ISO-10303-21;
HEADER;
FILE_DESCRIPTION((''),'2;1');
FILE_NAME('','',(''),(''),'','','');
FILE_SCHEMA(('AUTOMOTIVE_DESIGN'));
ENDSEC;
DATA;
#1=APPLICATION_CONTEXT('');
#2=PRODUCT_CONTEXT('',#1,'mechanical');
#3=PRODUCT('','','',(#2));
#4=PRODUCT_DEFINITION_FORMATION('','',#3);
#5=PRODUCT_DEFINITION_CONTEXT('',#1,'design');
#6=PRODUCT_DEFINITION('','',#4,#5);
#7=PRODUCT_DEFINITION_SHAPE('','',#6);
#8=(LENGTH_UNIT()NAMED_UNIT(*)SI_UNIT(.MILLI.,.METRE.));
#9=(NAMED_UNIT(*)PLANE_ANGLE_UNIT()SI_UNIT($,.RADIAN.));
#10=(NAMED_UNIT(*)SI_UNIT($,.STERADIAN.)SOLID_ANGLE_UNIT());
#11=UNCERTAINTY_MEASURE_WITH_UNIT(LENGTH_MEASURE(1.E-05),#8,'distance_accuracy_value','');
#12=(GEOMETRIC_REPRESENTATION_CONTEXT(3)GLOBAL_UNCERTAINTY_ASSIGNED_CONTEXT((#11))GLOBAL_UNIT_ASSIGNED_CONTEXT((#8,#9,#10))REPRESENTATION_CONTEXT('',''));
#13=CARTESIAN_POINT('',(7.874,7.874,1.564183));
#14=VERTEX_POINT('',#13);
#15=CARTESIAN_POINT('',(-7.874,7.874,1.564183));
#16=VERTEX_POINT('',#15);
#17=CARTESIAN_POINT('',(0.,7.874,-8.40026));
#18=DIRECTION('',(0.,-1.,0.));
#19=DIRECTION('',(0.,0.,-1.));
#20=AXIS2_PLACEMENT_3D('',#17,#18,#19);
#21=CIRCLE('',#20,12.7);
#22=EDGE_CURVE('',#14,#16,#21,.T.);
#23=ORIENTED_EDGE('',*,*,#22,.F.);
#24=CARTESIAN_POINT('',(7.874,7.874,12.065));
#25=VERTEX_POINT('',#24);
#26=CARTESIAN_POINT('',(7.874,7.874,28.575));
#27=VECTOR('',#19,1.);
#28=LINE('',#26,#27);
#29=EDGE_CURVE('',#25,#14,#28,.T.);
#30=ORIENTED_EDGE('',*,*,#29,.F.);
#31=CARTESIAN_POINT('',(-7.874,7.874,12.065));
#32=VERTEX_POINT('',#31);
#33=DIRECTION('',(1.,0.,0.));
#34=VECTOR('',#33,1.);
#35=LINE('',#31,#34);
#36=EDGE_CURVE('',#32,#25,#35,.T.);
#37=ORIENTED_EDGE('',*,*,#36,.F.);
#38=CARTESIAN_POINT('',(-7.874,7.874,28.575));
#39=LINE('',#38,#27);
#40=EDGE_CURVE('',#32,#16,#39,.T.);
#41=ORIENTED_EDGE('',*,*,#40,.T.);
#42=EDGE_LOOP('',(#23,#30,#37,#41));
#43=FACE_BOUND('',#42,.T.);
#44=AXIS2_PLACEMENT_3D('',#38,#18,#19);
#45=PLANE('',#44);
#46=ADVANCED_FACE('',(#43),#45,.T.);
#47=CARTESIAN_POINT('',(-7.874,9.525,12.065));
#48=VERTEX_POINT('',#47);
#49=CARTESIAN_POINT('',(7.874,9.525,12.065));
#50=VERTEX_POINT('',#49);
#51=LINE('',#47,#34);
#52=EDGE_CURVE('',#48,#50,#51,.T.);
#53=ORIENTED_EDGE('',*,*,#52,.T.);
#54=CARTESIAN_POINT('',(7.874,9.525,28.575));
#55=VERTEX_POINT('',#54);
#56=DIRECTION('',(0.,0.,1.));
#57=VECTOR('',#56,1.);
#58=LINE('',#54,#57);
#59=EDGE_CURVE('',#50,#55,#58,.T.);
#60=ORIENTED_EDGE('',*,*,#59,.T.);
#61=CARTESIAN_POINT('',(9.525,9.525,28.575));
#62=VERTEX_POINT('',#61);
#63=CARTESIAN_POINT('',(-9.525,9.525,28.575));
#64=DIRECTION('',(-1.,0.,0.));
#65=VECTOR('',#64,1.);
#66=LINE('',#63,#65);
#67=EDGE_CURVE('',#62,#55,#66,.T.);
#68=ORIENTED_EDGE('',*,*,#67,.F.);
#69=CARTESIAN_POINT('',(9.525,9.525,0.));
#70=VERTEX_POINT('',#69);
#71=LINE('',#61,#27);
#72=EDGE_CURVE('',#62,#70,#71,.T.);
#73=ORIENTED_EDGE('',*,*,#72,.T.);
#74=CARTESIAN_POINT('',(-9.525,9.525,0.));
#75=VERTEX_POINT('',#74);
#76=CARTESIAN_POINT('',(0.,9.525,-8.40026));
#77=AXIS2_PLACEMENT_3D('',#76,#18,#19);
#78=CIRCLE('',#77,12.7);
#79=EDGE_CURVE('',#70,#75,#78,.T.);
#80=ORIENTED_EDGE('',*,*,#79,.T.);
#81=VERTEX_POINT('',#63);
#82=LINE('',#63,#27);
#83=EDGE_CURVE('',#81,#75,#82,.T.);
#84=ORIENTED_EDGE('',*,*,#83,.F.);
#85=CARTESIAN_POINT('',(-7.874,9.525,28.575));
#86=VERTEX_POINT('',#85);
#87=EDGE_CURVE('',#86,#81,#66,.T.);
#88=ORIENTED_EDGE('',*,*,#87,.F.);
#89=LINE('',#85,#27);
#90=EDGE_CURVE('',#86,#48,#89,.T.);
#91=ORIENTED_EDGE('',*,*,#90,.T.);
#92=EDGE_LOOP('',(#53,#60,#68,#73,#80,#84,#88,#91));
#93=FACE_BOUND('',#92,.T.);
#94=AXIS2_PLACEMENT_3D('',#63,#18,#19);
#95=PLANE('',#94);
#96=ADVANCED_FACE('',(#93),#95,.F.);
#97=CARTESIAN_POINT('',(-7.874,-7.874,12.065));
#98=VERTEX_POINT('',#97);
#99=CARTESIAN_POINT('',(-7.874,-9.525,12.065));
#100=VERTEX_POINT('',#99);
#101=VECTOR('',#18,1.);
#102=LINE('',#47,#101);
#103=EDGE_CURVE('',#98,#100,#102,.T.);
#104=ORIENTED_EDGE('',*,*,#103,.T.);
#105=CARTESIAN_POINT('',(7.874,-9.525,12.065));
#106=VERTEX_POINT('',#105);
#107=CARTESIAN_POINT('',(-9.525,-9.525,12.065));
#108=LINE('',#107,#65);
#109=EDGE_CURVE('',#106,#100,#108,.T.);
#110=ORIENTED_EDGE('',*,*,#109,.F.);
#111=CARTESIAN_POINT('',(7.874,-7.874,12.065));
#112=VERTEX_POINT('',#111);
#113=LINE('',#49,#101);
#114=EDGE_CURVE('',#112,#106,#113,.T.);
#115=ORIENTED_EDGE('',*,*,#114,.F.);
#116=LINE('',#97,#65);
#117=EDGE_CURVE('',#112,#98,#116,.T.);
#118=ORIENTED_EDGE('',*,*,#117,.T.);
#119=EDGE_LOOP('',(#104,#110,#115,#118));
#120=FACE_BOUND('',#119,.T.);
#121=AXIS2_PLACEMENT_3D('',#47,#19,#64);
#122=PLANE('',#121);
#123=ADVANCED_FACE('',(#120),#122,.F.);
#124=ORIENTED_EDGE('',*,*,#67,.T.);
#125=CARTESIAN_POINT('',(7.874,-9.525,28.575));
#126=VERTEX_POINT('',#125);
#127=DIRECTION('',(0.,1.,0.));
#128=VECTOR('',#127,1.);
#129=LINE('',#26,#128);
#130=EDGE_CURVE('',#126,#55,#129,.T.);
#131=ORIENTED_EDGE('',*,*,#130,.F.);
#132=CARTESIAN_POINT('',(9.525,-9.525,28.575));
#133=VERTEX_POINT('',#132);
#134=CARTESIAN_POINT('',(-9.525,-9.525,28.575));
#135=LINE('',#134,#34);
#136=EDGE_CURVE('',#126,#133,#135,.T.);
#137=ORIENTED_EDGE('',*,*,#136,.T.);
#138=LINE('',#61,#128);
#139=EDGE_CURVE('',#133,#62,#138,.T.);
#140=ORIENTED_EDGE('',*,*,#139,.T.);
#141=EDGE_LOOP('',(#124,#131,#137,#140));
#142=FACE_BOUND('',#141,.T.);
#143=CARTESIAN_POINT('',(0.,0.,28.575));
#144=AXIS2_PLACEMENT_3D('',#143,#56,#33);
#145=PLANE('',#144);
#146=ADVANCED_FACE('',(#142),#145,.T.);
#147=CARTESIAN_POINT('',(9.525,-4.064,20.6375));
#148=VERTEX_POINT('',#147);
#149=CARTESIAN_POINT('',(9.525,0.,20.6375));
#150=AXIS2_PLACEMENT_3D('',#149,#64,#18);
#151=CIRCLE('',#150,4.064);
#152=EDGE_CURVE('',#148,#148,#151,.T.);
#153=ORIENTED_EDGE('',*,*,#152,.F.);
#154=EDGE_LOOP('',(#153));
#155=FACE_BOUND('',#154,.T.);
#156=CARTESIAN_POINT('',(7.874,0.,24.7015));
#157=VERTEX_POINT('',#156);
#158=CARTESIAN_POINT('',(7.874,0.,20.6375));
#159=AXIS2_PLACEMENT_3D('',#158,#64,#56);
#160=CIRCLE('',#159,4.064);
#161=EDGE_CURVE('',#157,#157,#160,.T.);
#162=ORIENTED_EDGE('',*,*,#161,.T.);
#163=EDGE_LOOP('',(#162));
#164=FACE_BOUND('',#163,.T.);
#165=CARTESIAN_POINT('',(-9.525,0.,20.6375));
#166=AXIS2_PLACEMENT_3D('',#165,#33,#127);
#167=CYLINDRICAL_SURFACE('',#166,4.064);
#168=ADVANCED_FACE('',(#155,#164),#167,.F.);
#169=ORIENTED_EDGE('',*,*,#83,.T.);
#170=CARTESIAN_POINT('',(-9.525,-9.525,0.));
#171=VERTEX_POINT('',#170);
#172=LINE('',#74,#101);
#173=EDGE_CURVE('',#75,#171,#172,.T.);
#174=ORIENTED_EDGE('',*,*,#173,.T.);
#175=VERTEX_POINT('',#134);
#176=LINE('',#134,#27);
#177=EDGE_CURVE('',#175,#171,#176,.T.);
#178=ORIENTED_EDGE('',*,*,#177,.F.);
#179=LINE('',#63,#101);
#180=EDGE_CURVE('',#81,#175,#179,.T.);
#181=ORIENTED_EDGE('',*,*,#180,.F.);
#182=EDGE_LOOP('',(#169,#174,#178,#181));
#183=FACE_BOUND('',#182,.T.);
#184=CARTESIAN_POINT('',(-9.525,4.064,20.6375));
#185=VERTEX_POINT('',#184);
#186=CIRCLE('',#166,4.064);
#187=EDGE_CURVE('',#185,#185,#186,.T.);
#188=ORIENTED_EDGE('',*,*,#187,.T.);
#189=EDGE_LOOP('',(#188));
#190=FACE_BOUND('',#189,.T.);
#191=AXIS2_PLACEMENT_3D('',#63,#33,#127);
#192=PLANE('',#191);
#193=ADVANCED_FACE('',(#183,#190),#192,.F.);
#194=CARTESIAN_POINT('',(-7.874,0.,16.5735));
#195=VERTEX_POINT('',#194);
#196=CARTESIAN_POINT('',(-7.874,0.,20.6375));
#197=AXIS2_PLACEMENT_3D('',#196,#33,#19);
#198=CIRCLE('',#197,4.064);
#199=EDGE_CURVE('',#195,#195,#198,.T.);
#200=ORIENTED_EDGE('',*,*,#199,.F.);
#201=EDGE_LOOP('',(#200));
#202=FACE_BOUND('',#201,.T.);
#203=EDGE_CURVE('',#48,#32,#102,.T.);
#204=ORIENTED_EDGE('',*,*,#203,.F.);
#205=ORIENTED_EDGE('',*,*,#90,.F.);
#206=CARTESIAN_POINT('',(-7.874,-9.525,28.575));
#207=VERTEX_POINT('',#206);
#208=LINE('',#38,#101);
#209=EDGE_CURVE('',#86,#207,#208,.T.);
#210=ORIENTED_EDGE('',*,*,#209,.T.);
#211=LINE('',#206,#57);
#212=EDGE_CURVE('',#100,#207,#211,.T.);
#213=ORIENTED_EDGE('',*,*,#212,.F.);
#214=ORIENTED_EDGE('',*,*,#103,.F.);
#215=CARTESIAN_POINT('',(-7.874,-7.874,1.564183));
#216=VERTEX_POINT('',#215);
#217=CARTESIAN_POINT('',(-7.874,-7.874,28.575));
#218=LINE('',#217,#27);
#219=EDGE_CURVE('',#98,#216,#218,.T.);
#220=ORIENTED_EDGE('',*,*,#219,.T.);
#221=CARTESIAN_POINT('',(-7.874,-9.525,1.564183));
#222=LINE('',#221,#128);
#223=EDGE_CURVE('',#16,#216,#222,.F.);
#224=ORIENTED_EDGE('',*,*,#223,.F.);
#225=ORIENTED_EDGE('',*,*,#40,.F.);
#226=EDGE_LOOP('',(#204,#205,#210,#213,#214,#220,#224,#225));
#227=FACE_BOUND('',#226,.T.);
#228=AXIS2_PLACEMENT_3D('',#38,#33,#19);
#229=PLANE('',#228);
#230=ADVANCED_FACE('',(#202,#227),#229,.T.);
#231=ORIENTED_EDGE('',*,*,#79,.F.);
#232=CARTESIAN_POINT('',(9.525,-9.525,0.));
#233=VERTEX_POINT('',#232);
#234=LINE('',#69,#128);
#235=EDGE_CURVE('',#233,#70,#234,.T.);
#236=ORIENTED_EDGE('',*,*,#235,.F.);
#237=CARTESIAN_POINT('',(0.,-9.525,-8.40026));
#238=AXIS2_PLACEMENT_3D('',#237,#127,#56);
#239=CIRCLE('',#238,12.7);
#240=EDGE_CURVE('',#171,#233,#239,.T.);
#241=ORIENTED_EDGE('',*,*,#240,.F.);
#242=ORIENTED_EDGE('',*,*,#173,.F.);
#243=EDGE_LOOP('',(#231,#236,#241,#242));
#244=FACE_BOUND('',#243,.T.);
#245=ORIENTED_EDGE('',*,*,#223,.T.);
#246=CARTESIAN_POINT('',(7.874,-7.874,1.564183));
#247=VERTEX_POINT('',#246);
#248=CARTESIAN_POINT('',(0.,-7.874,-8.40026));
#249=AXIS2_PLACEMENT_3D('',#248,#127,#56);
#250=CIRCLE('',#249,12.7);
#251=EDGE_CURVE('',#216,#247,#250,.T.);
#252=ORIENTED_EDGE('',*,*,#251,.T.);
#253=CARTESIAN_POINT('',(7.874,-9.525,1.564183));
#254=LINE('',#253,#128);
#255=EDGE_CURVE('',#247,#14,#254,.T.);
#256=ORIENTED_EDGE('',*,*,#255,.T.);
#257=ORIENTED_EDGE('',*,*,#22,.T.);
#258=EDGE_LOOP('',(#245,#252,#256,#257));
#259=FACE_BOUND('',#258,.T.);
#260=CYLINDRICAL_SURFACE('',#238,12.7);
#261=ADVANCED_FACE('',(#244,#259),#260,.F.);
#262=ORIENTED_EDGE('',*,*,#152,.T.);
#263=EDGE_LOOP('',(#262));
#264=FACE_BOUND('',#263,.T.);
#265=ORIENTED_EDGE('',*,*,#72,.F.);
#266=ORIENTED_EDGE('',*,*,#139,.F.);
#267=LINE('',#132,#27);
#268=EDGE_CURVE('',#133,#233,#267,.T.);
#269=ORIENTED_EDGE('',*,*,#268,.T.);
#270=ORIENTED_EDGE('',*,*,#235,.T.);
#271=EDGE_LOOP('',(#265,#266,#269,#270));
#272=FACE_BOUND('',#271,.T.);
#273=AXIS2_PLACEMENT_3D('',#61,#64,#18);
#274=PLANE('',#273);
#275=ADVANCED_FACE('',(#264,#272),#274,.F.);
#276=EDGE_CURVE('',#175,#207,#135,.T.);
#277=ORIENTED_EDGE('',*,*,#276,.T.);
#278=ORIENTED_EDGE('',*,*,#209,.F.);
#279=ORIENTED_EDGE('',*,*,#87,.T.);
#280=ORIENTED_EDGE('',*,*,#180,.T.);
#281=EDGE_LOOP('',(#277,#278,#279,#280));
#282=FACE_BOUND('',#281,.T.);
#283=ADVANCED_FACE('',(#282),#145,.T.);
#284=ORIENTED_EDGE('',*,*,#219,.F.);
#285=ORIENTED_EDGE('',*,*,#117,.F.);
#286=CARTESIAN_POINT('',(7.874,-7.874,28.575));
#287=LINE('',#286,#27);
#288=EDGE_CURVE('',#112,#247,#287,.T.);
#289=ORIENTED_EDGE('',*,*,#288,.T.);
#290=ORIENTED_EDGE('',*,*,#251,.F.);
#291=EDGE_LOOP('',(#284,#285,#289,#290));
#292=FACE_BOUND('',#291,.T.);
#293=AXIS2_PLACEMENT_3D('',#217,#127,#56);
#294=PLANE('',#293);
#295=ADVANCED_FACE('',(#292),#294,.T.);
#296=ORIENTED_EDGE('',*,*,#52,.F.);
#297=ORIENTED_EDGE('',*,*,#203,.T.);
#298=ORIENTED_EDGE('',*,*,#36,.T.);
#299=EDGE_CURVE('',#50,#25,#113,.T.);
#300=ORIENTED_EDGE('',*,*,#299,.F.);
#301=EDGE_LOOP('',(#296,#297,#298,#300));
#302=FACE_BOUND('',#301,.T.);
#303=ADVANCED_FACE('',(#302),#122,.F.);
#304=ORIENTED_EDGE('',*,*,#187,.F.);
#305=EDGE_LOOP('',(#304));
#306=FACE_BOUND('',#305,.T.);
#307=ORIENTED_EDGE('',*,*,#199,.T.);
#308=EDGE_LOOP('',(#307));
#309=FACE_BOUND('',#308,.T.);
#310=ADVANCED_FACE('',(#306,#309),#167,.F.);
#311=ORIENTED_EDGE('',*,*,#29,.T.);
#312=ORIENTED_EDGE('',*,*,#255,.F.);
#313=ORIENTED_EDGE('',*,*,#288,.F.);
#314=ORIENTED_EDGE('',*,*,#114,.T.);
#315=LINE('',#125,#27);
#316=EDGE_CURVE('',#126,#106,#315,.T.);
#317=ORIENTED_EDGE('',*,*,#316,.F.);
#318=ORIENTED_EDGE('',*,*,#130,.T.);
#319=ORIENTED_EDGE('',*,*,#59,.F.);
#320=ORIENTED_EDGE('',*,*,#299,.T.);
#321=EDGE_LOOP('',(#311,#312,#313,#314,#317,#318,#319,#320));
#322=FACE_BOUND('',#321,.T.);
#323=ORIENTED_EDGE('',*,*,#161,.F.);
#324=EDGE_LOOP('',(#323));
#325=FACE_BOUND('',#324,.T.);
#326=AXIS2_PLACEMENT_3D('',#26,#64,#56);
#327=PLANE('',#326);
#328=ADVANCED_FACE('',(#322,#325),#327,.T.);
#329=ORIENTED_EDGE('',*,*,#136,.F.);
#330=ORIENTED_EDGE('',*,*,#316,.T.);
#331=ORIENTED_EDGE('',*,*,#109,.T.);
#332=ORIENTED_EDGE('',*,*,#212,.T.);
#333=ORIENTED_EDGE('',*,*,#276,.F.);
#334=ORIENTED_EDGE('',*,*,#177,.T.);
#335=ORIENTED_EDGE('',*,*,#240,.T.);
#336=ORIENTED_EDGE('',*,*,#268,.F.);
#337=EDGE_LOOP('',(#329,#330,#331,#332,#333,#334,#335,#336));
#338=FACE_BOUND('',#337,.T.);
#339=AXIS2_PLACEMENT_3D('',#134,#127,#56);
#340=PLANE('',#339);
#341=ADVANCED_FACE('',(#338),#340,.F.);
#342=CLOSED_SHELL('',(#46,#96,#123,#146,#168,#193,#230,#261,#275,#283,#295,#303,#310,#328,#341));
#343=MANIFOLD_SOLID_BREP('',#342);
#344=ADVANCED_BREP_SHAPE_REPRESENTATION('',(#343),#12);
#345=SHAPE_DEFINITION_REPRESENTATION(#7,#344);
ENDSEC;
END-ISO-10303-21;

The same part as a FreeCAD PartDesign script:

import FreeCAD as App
import Part
import Sketcher
Q = App.Units.Quantity

doc = App.newDocument("Part")
params = doc.addObject("Spreadsheet::Sheet", "Params")
for row, (alias, value) in enumerate([
    ("sketch1_width", "0.75 in"),
    ("sketch1_width2", "0.62 in"),
    ("pad1_length", "1.125 in"),
    ("sketch2_diameter", "1 in"),
    ("sketch3_diameter", "0.32 in"),
    ("sketch4_width", "0.62 in"),
    ("sketch4_height", "0.65 in"),
], start=1):
    params.set(f"A{row}", alias)
    params.set(f"B{row}", "=" + value)
    params.setAlias(f"B{row}", alias)

body = doc.addObject("PartDesign::Body", "Body")

sketch1 = body.newObject("Sketcher::SketchObject", "Sketch")
sketch1.AttachmentSupport = (doc.getObject("XY_Plane"), [""])
sketch1.MapMode = "FlatFace"
sketch1.addGeometry(Part.LineSegment(App.Vector(-9.525, 9.525, 0), App.Vector(-9.525, -9.525, 0)), False)
sketch1.addGeometry(Part.LineSegment(App.Vector(-9.525, -9.525, 0), App.Vector(9.525, -9.525, 0)), False)
sketch1.addGeometry(Part.LineSegment(App.Vector(9.525, -9.525, 0), App.Vector(9.525, 9.525, 0)), False)
sketch1.addGeometry(Part.LineSegment(App.Vector(9.525, 9.525, 0), App.Vector(-9.525, 9.525, 0)), False)
sketch1.addGeometry(Part.LineSegment(App.Vector(7.874, -7.874, 0), App.Vector(-7.874, -7.874, 0)), False)
sketch1.addGeometry(Part.LineSegment(App.Vector(-7.874, -7.874, 0), App.Vector(-7.874, 7.874, 0)), False)
sketch1.addGeometry(Part.LineSegment(App.Vector(-7.874, 7.874, 0), App.Vector(7.874, 7.874, 0)), False)
sketch1.addGeometry(Part.LineSegment(App.Vector(7.874, 7.874, 0), App.Vector(7.874, -7.874, 0)), False)
sketch1.addConstraint(Sketcher.Constraint("Coincident", 0, 2, 1, 1))
sketch1.addConstraint(Sketcher.Constraint("Coincident", 1, 2, 2, 1))
sketch1.addConstraint(Sketcher.Constraint("Coincident", 2, 2, 3, 1))
sketch1.addConstraint(Sketcher.Constraint("Coincident", 3, 2, 0, 1))
sketch1.addConstraint(Sketcher.Constraint("Coincident", 4, 2, 5, 1))
sketch1.addConstraint(Sketcher.Constraint("Coincident", 5, 2, 6, 1))
sketch1.addConstraint(Sketcher.Constraint("Coincident", 6, 2, 7, 1))
sketch1.addConstraint(Sketcher.Constraint("Coincident", 7, 2, 4, 1))
sketch1.addConstraint(Sketcher.Constraint("Vertical", 0))
sketch1.addConstraint(Sketcher.Constraint("Horizontal", 1))
sketch1.addConstraint(Sketcher.Constraint("Vertical", 2))
sketch1.addConstraint(Sketcher.Constraint("Horizontal", 3))
sketch1.addConstraint(Sketcher.Constraint("Horizontal", 4))
sketch1.addConstraint(Sketcher.Constraint("Vertical", 5))
sketch1.addConstraint(Sketcher.Constraint("Horizontal", 6))
sketch1.addConstraint(Sketcher.Constraint("Vertical", 7))
sketch1.addConstraint(Sketcher.Constraint("Symmetric", 0, 2, 2, 2, -1, 1))
sketch1.addConstraint(Sketcher.Constraint("Symmetric", 4, 2, 6, 2, -1, 1))
sketch1.addConstraint(Sketcher.Constraint("Equal", 3, 0))
sketch1.addConstraint(Sketcher.Constraint("Equal", 6, 5))
sketch1.addConstraint(Sketcher.Constraint("DistanceX", 1, 1, 1, 2, Q("0.75 in")))
sketch1.addConstraint(Sketcher.Constraint("DistanceX", 4, 2, 4, 1, Q("0.62 in")))
sketch1.setExpression("Constraints[20]", "Params.sketch1_width")
sketch1.setExpression("Constraints[21]", "Params.sketch1_width2")
pad1 = body.newObject("PartDesign::Pad", "Pad")
pad1.Profile = sketch1
pad1.setExpression("Length", "Params.pad1_length")

sketch2 = body.newObject("Sketcher::SketchObject", "Sketch001")
sketch2.AttachmentSupport = (doc.getObject("XZ_Plane"), [""])
sketch2.MapMode = "FlatFace"
sketch2.AttachmentOffset = App.Placement(App.Vector(0, 0, -0.375 * 25.4), App.Rotation())
sketch2.addGeometry(Part.Circle(App.Vector(0, -8.40026, 0), App.Vector(0, 0, 1), 12.7), False)
sketch2.addConstraint(Sketcher.Constraint("PointOnObject", 0, 3, -2))
sketch2.addConstraint(Sketcher.Constraint("Diameter", 0, Q("1 in")))
sketch2.addConstraint(Sketcher.Constraint("DistanceY", 0, 3, -1, 1, 8.40026))
sketch2.setExpression("Constraints[1]", "Params.sketch2_diameter")
pocket1 = body.newObject("PartDesign::Pocket", "Pocket")
pocket1.Profile = sketch2
pocket1.Type = "ThroughAll"
pocket1.Midplane = True

sketch3 = body.newObject("Sketcher::SketchObject", "Sketch002")
sketch3.AttachmentSupport = (doc.getObject("YZ_Plane"), [""])
sketch3.MapMode = "FlatFace"
sketch3.AttachmentOffset = App.Placement(App.Vector(0, 0, 0.375 * 25.4), App.Rotation())
sketch3.addGeometry(Part.Circle(App.Vector(0, 20.6375, 0), App.Vector(0, 0, 1), 4.064), False)
sketch3.addConstraint(Sketcher.Constraint("PointOnObject", 0, 3, -2))
sketch3.addConstraint(Sketcher.Constraint("Diameter", 0, Q("0.32 in")))
sketch3.addConstraint(Sketcher.Constraint("DistanceY", -1, 1, 0, 3, Q("0.8125 in")))
sketch3.setExpression("Constraints[1]", "Params.sketch3_diameter")
pocket2 = body.newObject("PartDesign::Pocket", "Pocket001")
pocket2.Profile = sketch3
pocket2.Type = "ThroughAll"
pocket2.Midplane = True

sketch4 = body.newObject("Sketcher::SketchObject", "Sketch003")
sketch4.AttachmentSupport = (doc.getObject("XZ_Plane"), [""])
sketch4.MapMode = "FlatFace"
sketch4.AttachmentOffset = App.Placement(App.Vector(0, 0, 0.375 * 25.4), App.Rotation())
sketch4.addGeometry(Part.LineSegment(App.Vector(-7.874, 28.575, 0), App.Vector(-7.874, 12.065, 0)), False)
sketch4.addGeometry(Part.LineSegment(App.Vector(-7.874, 12.065, 0), App.Vector(7.874, 12.065, 0)), False)
sketch4.addGeometry(Part.LineSegment(App.Vector(7.874, 12.065, 0), App.Vector(7.874, 28.575, 0)), False)
sketch4.addGeometry(Part.LineSegment(App.Vector(7.874, 28.575, 0), App.Vector(-7.874, 28.575, 0)), False)
sketch4.addConstraint(Sketcher.Constraint("Coincident", 0, 2, 1, 1))
sketch4.addConstraint(Sketcher.Constraint("Coincident", 1, 2, 2, 1))
sketch4.addConstraint(Sketcher.Constraint("Coincident", 2, 2, 3, 1))
sketch4.addConstraint(Sketcher.Constraint("Coincident", 3, 2, 0, 1))
sketch4.addConstraint(Sketcher.Constraint("Vertical", 0))
sketch4.addConstraint(Sketcher.Constraint("Horizontal", 1))
sketch4.addConstraint(Sketcher.Constraint("Vertical", 2))
sketch4.addConstraint(Sketcher.Constraint("Horizontal", 3))
sketch4.addConstraint(Sketcher.Constraint("DistanceX", 1, 1, 1, 2, Q("0.62 in")))
sketch4.addConstraint(Sketcher.Constraint("DistanceY", 0, 2, 0, 1, Q("0.65 in")))
sketch4.addConstraint(Sketcher.Constraint("DistanceX", 0, 2, -1, 1, Q("0.31 in")))
sketch4.addConstraint(Sketcher.Constraint("DistanceY", -1, 1, 0, 2, Q("0.475 in")))
sketch4.setExpression("Constraints[8]", "Params.sketch4_width")
sketch4.setExpression("Constraints[9]", "Params.sketch4_height")
pocket3 = body.newObject("PartDesign::Pocket", "Pocket002")
pocket3.Profile = sketch4
pocket3.Type = "ThroughAll"
pocket3.Midplane = True

doc.recompute()
